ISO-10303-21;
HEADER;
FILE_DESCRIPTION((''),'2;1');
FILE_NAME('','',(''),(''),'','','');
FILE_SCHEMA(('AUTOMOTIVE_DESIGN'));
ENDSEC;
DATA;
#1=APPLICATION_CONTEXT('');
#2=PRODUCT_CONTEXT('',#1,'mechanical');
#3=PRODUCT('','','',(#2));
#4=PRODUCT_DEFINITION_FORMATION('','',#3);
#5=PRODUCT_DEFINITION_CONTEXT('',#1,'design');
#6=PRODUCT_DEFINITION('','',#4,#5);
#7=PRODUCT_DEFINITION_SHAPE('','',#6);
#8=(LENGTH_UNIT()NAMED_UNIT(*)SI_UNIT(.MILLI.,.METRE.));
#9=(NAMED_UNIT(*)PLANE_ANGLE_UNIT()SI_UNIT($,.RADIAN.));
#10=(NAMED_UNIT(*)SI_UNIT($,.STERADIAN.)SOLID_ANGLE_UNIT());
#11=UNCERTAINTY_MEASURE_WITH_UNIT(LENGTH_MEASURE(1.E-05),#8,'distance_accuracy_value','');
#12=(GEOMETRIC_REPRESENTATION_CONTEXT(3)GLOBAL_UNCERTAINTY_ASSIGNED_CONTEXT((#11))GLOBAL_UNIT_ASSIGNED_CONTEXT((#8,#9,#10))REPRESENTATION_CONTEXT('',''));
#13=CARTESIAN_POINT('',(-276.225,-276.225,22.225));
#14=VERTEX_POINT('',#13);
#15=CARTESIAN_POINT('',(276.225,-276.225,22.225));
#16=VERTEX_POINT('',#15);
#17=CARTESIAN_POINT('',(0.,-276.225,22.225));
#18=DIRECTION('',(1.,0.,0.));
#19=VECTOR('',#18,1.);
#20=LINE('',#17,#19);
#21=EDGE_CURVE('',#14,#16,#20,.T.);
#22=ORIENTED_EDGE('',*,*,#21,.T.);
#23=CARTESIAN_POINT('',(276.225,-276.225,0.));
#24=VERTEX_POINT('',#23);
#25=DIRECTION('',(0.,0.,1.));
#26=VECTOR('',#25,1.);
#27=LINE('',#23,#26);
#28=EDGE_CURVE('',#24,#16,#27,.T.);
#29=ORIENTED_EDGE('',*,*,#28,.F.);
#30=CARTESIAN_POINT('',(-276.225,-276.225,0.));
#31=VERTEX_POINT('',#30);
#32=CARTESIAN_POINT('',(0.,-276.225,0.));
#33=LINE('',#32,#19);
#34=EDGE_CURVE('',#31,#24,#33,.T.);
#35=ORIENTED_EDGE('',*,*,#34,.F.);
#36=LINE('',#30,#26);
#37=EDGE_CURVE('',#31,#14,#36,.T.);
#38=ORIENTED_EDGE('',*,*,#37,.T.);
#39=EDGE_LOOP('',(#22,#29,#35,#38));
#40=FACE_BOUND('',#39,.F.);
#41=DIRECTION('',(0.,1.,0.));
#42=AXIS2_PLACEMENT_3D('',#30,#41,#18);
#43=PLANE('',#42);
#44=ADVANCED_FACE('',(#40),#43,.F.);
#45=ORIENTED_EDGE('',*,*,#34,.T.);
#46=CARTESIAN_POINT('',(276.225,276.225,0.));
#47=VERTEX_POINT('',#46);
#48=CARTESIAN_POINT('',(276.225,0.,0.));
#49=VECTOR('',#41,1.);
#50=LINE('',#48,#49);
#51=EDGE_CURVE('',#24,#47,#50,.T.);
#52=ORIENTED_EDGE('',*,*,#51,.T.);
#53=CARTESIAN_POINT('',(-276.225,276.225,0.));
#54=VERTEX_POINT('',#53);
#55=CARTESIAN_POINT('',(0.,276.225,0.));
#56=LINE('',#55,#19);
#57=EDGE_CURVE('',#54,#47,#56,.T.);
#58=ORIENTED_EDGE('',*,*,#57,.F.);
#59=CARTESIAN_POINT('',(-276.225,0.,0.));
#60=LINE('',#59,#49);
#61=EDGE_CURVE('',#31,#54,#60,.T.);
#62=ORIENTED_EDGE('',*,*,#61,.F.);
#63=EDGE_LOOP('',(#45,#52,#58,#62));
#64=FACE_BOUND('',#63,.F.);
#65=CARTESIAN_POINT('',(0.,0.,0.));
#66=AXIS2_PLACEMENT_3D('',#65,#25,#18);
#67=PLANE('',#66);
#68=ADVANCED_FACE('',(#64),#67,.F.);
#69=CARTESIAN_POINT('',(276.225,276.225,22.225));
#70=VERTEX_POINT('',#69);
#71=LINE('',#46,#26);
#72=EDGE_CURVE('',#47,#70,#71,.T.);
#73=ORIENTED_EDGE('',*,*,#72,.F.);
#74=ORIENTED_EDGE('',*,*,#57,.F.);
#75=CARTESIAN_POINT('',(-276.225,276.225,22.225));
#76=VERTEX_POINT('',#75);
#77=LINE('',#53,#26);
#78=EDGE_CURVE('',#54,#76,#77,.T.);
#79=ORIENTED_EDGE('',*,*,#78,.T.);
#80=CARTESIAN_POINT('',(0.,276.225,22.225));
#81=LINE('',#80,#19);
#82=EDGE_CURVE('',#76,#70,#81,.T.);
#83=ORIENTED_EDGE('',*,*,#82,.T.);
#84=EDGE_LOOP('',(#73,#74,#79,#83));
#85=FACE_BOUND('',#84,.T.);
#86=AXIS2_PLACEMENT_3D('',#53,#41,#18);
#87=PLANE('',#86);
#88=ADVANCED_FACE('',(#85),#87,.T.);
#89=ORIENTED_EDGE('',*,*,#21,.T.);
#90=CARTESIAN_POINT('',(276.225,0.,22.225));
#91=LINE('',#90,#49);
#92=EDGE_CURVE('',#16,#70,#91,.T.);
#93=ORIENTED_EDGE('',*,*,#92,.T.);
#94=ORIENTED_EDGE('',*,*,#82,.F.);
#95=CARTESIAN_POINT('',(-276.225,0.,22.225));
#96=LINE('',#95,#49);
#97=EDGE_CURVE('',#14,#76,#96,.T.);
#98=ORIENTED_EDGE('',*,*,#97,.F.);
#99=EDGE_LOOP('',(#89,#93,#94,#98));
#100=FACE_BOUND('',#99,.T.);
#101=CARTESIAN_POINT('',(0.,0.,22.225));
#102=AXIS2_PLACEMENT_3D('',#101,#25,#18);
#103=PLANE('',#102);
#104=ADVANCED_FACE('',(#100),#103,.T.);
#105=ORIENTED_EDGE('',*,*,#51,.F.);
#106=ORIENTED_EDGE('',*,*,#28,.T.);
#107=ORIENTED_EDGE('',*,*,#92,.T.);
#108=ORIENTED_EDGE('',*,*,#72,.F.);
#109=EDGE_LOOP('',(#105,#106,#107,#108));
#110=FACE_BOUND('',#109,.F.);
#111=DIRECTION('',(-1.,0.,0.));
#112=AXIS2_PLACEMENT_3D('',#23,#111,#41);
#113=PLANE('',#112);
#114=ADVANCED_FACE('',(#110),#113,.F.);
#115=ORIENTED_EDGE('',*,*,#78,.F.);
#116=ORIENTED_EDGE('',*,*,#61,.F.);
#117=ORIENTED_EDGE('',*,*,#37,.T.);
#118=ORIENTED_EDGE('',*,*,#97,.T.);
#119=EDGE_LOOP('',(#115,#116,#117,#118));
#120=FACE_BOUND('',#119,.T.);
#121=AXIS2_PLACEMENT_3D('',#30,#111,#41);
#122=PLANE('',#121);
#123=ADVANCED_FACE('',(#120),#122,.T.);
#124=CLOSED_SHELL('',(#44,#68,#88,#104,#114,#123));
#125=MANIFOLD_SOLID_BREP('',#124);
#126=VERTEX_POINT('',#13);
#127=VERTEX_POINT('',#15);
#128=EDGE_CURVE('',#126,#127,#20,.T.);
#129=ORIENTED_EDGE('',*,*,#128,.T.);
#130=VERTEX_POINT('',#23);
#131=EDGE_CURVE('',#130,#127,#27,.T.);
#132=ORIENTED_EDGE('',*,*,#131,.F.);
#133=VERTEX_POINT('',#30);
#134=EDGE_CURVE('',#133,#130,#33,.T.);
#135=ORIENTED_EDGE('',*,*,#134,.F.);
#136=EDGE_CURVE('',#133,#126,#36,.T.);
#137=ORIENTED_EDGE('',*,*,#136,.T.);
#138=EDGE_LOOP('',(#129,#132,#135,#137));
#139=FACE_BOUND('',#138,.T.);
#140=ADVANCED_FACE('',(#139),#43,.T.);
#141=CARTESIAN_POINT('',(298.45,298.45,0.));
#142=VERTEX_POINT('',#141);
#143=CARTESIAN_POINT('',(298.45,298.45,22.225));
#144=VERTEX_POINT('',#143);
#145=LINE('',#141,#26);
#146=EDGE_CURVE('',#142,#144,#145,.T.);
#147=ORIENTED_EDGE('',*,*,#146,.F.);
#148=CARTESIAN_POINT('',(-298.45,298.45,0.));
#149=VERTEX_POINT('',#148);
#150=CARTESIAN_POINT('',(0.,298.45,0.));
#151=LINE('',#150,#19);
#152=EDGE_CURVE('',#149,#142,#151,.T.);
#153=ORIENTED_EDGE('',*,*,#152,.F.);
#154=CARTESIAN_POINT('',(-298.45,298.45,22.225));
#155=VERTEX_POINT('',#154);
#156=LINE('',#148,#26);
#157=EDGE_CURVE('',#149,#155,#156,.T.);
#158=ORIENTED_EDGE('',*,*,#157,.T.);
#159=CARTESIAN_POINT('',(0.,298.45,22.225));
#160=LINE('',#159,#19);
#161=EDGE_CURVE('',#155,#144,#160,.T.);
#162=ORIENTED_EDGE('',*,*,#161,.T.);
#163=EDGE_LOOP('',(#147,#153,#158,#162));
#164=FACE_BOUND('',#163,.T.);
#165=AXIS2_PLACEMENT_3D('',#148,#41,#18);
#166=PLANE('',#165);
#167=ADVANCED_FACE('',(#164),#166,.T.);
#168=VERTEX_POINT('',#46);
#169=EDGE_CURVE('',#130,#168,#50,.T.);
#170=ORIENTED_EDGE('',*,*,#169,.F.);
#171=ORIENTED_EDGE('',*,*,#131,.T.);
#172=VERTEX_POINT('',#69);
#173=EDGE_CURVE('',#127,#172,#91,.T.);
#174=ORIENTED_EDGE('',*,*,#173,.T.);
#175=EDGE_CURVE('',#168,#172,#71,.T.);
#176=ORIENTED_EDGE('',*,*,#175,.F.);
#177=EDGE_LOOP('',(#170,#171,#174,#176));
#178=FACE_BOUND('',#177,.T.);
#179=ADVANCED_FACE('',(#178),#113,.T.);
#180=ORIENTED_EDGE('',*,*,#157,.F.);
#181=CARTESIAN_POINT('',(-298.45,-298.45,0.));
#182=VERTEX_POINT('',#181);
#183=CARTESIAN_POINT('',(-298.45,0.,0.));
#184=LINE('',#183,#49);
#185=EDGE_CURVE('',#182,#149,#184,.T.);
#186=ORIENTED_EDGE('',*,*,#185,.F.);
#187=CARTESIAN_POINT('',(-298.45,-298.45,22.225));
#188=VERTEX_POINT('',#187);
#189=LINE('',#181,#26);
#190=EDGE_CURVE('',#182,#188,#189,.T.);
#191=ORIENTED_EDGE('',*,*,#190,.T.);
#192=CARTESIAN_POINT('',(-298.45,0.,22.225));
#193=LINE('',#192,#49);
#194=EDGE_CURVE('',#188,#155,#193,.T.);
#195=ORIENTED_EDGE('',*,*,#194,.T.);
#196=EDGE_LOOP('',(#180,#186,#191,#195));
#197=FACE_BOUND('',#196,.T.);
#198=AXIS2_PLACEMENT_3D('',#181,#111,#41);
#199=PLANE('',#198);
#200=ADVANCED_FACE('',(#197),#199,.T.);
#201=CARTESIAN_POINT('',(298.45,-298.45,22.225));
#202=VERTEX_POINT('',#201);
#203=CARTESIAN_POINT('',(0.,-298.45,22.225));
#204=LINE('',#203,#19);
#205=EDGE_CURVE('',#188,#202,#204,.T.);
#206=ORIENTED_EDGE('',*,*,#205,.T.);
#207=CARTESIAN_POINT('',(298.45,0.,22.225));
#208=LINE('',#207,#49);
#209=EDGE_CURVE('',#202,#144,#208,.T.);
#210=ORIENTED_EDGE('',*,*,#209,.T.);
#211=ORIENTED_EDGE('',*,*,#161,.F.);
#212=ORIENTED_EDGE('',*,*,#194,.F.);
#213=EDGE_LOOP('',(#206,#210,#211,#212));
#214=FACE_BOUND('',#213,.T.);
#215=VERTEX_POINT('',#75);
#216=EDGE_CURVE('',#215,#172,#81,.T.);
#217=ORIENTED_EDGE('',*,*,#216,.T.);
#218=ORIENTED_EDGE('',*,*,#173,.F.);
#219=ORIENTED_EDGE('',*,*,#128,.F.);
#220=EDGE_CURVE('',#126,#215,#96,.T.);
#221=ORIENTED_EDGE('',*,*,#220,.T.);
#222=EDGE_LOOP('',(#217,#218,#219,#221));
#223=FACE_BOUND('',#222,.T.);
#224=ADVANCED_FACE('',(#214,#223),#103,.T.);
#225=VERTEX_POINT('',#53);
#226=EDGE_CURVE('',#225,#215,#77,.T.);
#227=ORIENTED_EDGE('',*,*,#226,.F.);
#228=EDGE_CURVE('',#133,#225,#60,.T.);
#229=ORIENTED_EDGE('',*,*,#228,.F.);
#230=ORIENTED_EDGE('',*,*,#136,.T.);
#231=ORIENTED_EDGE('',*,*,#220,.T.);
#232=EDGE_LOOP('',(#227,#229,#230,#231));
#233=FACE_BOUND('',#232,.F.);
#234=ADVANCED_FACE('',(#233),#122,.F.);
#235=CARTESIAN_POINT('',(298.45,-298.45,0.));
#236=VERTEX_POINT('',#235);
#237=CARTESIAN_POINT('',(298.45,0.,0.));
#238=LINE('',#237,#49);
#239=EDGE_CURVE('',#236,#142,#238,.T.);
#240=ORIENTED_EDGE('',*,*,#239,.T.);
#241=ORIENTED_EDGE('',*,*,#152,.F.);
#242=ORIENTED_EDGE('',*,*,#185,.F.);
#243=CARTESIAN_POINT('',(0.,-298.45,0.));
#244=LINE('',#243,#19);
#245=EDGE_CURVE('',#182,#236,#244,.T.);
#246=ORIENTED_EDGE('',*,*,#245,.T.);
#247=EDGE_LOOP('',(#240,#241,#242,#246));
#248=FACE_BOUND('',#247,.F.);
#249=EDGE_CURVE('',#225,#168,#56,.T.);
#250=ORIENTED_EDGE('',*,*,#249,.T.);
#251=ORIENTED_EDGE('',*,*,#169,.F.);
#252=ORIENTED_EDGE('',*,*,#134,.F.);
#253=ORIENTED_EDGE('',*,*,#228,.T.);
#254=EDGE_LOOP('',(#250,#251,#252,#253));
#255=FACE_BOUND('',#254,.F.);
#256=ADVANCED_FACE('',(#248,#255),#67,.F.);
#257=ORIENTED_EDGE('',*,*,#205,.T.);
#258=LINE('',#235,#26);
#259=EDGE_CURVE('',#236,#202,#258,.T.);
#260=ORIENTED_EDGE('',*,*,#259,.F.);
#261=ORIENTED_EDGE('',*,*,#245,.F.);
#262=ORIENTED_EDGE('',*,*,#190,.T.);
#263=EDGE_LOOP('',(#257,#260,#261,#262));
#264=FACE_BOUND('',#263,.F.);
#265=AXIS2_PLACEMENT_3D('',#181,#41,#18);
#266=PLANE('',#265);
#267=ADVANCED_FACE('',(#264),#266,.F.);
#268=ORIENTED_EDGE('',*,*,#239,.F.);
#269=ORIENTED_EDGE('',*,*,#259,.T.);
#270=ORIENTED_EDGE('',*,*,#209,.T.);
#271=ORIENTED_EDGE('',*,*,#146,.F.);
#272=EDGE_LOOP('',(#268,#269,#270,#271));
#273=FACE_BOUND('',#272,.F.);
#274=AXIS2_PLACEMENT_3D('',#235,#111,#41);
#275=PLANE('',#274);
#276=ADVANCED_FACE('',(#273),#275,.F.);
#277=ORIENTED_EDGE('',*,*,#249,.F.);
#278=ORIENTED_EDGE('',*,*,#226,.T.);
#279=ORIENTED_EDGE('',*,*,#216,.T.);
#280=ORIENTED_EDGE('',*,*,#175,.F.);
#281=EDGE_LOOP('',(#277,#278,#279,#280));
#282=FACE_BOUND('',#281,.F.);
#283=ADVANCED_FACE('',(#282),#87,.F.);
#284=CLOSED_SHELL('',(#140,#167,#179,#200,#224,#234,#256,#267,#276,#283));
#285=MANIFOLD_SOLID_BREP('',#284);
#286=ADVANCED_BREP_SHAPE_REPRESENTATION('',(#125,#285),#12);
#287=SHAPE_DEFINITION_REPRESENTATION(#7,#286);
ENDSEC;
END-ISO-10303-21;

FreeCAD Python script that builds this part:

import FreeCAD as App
import Part
import Sketcher

V = App.Vector
Q = App.Units.Quantity


def add_polygon(sketch, points):
    """Adds a closed chain of lines whose ends are joined by coincident constraints."""
    first, n = sketch.GeometryCount, len(points)
    for a, b in zip(points, points[1:] + points[:1]):
        sketch.addGeometry(Part.LineSegment(App.Vector(*a, 0), App.Vector(*b, 0)), False)
    for i in range(n):
        sketch.addConstraint(Sketcher.Constraint("Coincident", first + i, 2, first + (i + 1) % n, 1))

doc = App.newDocument("Part")
body = doc.addObject("PartDesign::Body", "Body")

sketch1 = body.newObject("Sketcher::SketchObject", "Sketch")
sketch1.AttachmentSupport = (doc.getObject("XY_Plane"), [""])
sketch1.MapMode = "FlatFace"
add_polygon(sketch1, [(-298, 298), (-298, -298), (298, -298), (298, 298)])
add_polygon(sketch1, [(276, -276), (-276, -276), (-276, 276), (276, 276)])
sketch1.addConstraint([
    Sketcher.Constraint("Vertical", 0),
    Sketcher.Constraint("Horizontal", 1),
    Sketcher.Constraint("Vertical", 2),
    Sketcher.Constraint("Horizontal", 3),
    Sketcher.Constraint("Horizontal", 4),
    Sketcher.Constraint("Vertical", 5),
    Sketcher.Constraint("Horizontal", 6),
    Sketcher.Constraint("Vertical", 7),
    Sketcher.Constraint("Symmetric", 0, 2, 2, 2, -1, 1),
    Sketcher.Constraint("Symmetric", 4, 2, 6, 2, -1, 1),
    Sketcher.Constraint("Equal", 3, 0),
    Sketcher.Constraint("Equal", 6, 5),
    Sketcher.Constraint("DistanceX", 1, 1, 1, 2, Q("23.5 in")),
    Sketcher.Constraint("DistanceX", 4, 2, 4, 1, Q("21.75 in")),
])
pad1 = body.newObject("PartDesign::Pad", "Pad")
pad1.Profile = sketch1
pad1.Length = Q("0.875 in")
body2 = doc.addObject("PartDesign::Body", "Body001")

sketch2 = body2.newObject("Sketcher::SketchObject", "Sketch001")
sketch2.AttachmentSupport = (doc.getObject("XY_Plane001"), [""])
sketch2.MapMode = "FlatFace"
add_polygon(sketch2, [(-276, 276), (-276, -276), (276, -276), (276, 276)])
sketch2.addConstraint([
    Sketcher.Constraint("Vertical", 0),
    Sketcher.Constraint("Horizontal", 1),
    Sketcher.Constraint("Vertical", 2),
    Sketcher.Constraint("Horizontal", 3),
    Sketcher.Constraint("Symmetric", 0, 2, 2, 2, -1, 1),
    Sketcher.Constraint("Equal", 3, 0),
    Sketcher.Constraint("DistanceX", 1, 1, 1, 2, Q("21.75 in")),
])
pad2 = body2.newObject("PartDesign::Pad", "Pad001")
pad2.Profile = sketch2
pad2.Length = Q("0.875 in")

doc.recompute()
